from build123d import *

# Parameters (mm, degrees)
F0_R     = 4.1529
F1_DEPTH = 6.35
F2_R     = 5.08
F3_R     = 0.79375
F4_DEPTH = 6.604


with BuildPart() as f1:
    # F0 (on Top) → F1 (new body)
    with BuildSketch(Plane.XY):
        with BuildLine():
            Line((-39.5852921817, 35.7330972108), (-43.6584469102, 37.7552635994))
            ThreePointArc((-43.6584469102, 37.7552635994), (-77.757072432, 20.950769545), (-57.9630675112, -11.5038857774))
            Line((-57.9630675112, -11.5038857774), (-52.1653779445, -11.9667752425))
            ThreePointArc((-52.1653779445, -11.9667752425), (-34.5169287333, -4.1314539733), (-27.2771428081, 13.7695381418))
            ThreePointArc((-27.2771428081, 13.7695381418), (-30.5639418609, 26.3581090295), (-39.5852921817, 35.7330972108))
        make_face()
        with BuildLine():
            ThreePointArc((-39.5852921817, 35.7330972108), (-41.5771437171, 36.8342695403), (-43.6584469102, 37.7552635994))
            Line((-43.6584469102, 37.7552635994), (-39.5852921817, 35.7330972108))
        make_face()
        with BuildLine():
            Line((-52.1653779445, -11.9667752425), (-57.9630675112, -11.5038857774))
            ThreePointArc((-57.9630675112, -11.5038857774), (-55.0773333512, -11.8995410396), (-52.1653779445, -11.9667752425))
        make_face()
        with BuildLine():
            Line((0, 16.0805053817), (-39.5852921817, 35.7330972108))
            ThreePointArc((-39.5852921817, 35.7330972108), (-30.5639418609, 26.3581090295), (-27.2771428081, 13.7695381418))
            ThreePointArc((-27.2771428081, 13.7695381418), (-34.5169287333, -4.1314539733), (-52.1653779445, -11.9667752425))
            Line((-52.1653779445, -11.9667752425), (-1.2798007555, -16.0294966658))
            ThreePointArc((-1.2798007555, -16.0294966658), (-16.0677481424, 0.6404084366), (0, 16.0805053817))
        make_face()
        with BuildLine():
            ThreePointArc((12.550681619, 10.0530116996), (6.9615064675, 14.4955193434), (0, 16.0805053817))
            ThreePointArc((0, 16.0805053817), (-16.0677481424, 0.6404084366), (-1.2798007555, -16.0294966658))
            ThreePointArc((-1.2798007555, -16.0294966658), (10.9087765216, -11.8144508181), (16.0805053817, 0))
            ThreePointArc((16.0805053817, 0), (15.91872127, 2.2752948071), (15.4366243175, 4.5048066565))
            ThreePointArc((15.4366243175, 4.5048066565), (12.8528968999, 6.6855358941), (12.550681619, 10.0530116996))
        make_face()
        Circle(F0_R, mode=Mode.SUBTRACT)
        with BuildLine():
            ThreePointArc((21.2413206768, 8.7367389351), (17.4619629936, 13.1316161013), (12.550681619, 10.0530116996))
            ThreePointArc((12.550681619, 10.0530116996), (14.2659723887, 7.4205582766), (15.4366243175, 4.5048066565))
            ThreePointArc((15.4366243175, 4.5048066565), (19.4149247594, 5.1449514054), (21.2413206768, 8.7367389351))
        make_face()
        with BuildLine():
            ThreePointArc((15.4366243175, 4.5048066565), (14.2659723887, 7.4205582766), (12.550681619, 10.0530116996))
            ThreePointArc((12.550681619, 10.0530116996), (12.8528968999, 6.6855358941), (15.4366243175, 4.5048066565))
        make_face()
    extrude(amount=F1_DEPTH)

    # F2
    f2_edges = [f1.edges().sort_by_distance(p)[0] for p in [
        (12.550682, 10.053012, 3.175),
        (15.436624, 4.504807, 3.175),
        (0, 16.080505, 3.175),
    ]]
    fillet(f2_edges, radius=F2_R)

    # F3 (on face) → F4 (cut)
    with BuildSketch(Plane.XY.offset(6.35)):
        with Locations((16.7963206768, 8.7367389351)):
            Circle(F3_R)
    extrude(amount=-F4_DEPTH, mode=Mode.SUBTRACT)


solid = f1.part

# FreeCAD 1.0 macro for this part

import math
import FreeCAD as App
import Part
import Sketcher
from FreeCAD import Vector
Q = App.Units.Quantity


def edges_at(feature, points):
    """Names of the edges that pass closest to the given points."""
    edges = feature.Shape.Edges
    near = lambda p: min(range(len(edges)), key=lambda i: edges[i].distToShape(Part.Vertex(*p))[0])
    return sorted({f"Edge{near(p) + 1}" for p in points})

doc = App.newDocument("Part")
body = doc.addObject("PartDesign::Body", "Body")

sketch1 = body.newObject("Sketcher::SketchObject", "Sketch")
sketch1.AttachmentSupport = (doc.getObject("XY_Plane"), [""])
sketch1.MapMode = "FlatFace"
sketch1.addGeometry([
    Part.ArcOfCircle(Part.Circle(Vector(-53.027906, 13.769538, 0), Vector(0, 0, 1), 25.750763), math.radians(68.663069), math.radians(258.950844)),
    Part.ArcOfCircle(Part.Circle(Vector(-53.027906, 13.769538, 0), Vector(0, 0, 1), 25.750763), math.radians(-101.049156), math.radians(-88.080506)),
    Part.LineSegment(Vector(-52.165378, -11.966775, 0), Vector(-1.279801, -16.029497, 0)),
    Part.ArcOfCircle(Part.Circle(Vector(0, 0, 0), Vector(0, 0, 1), 16.080505), math.radians(-94.564833), math.radians(0)),
    Part.ArcOfCircle(Part.Circle(Vector(0, 0, 0), Vector(0, 0, 1), 16.080505), math.radians(0), math.radians(16.268612)),
    Part.ArcOfCircle(Part.Circle(Vector(16.796321, 8.736739, 0), Vector(0, 0, 1), 4.445), math.radians(-107.811924), math.radians(0)),
    Part.ArcOfCircle(Part.Circle(Vector(16.796321, 8.736739, 0), Vector(0, 0, 1), 4.445), math.radians(0), math.radians(162.775029)),
    Part.ArcOfCircle(Part.Circle(Vector(0, 0, 0), Vector(0, 0, 1), 16.080505), math.radians(38.694493), math.radians(90)),
    Part.LineSegment(Vector(0, 16.080505, 0), Vector(-39.585292, 35.733097, 0)),
    Part.ArcOfCircle(Part.Circle(Vector(-53.027906, 13.769538, 0), Vector(0, 0, 1), 25.750763), math.radians(58.531631), math.radians(68.663069)),
    Part.Circle(Vector(0, 0, 0), Vector(0, 0, 1), 4.1529),
], False)
sketch1.addConstraint([
    Sketcher.Constraint("Coincident", 0, 2, 1, 1),
    Sketcher.Constraint("Coincident", 1, 2, 2, 1),
    Sketcher.Constraint("Coincident", 2, 2, 3, 1),
    Sketcher.Constraint("Coincident", 3, 2, 4, 1),
    Sketcher.Constraint("Coincident", 4, 2, 5, 1),
    Sketcher.Constraint("Coincident", 5, 2, 6, 1),
    Sketcher.Constraint("Coincident", 6, 2, 7, 1),
    Sketcher.Constraint("Coincident", 7, 2, 8, 1),
    Sketcher.Constraint("Coincident", 8, 2, 9, 1),
    Sketcher.Constraint("Coincident", 9, 2, 0, 1),
    Sketcher.Constraint("Coincident", 3, 3, -1, 1),
    Sketcher.Constraint("Coincident", 4, 3, -1, 1),
    Sketcher.Constraint("Coincident", 7, 3, -1, 1),
    Sketcher.Constraint("Coincident", 10, 3, -1, 1),
    Sketcher.Constraint("Coincident", 1, 3, 0, 3),
    Sketcher.Constraint("Coincident", 6, 3, 5, 3),
    Sketcher.Constraint("Coincident", 9, 3, 0, 3),
    Sketcher.Constraint("PointOnObject", 3, 2, -1),
    Sketcher.Constraint("PointOnObject", 7, 2, -2),
    Sketcher.Constraint("Diameter", 10, Q("0.327 in")),
    Sketcher.Constraint("Radius", 5, Q("0.175 in")),
    Sketcher.Constraint("Radius", 0, Q("25.750763 mm")),
    Sketcher.Constraint("Radius", 3, Q("16.080505 mm")),
    Sketcher.Constraint("Radius", 7, Q("16.080505 mm")),
    Sketcher.Constraint("DistanceX", 2, 2, -1, 1, Q("1.279801 mm")),
    Sketcher.Constraint("DistanceY", 5, 3, 0, 3, Q("5.032799 mm")),
    Sketcher.Constraint("DistanceY", -1, 1, 0, 3, Q("13.769538 mm")),
    Sketcher.Constraint("DistanceX", -1, 1, 5, 3, Q("16.796321 mm")),
    Sketcher.Constraint("DistanceY", -1, 1, 5, 2, Q("8.736739 mm")),
    Sketcher.Constraint("DistanceX", 0, 2, 9, 3, Q("4.935162 mm")),
    Sketcher.Constraint("DistanceX", 0, 2, 1, 2, Q("5.79769 mm")),
    Sketcher.Constraint("DistanceY", 0, 3, 8, 2, Q("21.963559 mm")),
    Sketcher.Constraint("DistanceX", 0, 3, 9, 2, Q("9.369459 mm")),
    Sketcher.Constraint("Distance", 2, Q("51.047504 mm")),
])
pad1 = body.newObject("PartDesign::Pad", "Pad")
pad1.Profile = sketch1
pad1.Length = Q("0.25 in")
doc.recompute()

fillet = body.newObject("PartDesign::Fillet", "Fillet")
fillet.Base = (pad1, edges_at(pad1, [(12.551, 10.053, 3.175), (15.437, 4.505, 3.175), (0, 16.081, 3.175)]))
fillet.Radius = Q("0.2 in")

sketch2 = body.newObject("Sketcher::SketchObject", "Sketch001")
sketch2.AttachmentSupport = (doc.getObject("XY_Plane"), [""])
sketch2.MapMode = "FlatFace"
sketch2.AttachmentOffset = App.Placement(Vector(0, 0, 0.25 * 25.4), App.Rotation())
sketch2.addGeometry(Part.Circle(Vector(16.8, 8.7, 0), Vector(0, 0, 1), 0.8), False)
sketch2.addConstraint([
    Sketcher.Constraint("Diameter", 0, Q("0.0625 in")),
    Sketcher.Constraint("DistanceX", -1, 1, 0, 3, Q("16.796321 mm")),
    Sketcher.Constraint("DistanceY", -1, 1, 0, 3, Q("8.736739 mm")),
])
pocket1 = body.newObject("PartDesign::Pocket", "Pocket")
pocket1.Profile = sketch2
pocket1.Length = Q("0.26 in")

doc.recompute()
